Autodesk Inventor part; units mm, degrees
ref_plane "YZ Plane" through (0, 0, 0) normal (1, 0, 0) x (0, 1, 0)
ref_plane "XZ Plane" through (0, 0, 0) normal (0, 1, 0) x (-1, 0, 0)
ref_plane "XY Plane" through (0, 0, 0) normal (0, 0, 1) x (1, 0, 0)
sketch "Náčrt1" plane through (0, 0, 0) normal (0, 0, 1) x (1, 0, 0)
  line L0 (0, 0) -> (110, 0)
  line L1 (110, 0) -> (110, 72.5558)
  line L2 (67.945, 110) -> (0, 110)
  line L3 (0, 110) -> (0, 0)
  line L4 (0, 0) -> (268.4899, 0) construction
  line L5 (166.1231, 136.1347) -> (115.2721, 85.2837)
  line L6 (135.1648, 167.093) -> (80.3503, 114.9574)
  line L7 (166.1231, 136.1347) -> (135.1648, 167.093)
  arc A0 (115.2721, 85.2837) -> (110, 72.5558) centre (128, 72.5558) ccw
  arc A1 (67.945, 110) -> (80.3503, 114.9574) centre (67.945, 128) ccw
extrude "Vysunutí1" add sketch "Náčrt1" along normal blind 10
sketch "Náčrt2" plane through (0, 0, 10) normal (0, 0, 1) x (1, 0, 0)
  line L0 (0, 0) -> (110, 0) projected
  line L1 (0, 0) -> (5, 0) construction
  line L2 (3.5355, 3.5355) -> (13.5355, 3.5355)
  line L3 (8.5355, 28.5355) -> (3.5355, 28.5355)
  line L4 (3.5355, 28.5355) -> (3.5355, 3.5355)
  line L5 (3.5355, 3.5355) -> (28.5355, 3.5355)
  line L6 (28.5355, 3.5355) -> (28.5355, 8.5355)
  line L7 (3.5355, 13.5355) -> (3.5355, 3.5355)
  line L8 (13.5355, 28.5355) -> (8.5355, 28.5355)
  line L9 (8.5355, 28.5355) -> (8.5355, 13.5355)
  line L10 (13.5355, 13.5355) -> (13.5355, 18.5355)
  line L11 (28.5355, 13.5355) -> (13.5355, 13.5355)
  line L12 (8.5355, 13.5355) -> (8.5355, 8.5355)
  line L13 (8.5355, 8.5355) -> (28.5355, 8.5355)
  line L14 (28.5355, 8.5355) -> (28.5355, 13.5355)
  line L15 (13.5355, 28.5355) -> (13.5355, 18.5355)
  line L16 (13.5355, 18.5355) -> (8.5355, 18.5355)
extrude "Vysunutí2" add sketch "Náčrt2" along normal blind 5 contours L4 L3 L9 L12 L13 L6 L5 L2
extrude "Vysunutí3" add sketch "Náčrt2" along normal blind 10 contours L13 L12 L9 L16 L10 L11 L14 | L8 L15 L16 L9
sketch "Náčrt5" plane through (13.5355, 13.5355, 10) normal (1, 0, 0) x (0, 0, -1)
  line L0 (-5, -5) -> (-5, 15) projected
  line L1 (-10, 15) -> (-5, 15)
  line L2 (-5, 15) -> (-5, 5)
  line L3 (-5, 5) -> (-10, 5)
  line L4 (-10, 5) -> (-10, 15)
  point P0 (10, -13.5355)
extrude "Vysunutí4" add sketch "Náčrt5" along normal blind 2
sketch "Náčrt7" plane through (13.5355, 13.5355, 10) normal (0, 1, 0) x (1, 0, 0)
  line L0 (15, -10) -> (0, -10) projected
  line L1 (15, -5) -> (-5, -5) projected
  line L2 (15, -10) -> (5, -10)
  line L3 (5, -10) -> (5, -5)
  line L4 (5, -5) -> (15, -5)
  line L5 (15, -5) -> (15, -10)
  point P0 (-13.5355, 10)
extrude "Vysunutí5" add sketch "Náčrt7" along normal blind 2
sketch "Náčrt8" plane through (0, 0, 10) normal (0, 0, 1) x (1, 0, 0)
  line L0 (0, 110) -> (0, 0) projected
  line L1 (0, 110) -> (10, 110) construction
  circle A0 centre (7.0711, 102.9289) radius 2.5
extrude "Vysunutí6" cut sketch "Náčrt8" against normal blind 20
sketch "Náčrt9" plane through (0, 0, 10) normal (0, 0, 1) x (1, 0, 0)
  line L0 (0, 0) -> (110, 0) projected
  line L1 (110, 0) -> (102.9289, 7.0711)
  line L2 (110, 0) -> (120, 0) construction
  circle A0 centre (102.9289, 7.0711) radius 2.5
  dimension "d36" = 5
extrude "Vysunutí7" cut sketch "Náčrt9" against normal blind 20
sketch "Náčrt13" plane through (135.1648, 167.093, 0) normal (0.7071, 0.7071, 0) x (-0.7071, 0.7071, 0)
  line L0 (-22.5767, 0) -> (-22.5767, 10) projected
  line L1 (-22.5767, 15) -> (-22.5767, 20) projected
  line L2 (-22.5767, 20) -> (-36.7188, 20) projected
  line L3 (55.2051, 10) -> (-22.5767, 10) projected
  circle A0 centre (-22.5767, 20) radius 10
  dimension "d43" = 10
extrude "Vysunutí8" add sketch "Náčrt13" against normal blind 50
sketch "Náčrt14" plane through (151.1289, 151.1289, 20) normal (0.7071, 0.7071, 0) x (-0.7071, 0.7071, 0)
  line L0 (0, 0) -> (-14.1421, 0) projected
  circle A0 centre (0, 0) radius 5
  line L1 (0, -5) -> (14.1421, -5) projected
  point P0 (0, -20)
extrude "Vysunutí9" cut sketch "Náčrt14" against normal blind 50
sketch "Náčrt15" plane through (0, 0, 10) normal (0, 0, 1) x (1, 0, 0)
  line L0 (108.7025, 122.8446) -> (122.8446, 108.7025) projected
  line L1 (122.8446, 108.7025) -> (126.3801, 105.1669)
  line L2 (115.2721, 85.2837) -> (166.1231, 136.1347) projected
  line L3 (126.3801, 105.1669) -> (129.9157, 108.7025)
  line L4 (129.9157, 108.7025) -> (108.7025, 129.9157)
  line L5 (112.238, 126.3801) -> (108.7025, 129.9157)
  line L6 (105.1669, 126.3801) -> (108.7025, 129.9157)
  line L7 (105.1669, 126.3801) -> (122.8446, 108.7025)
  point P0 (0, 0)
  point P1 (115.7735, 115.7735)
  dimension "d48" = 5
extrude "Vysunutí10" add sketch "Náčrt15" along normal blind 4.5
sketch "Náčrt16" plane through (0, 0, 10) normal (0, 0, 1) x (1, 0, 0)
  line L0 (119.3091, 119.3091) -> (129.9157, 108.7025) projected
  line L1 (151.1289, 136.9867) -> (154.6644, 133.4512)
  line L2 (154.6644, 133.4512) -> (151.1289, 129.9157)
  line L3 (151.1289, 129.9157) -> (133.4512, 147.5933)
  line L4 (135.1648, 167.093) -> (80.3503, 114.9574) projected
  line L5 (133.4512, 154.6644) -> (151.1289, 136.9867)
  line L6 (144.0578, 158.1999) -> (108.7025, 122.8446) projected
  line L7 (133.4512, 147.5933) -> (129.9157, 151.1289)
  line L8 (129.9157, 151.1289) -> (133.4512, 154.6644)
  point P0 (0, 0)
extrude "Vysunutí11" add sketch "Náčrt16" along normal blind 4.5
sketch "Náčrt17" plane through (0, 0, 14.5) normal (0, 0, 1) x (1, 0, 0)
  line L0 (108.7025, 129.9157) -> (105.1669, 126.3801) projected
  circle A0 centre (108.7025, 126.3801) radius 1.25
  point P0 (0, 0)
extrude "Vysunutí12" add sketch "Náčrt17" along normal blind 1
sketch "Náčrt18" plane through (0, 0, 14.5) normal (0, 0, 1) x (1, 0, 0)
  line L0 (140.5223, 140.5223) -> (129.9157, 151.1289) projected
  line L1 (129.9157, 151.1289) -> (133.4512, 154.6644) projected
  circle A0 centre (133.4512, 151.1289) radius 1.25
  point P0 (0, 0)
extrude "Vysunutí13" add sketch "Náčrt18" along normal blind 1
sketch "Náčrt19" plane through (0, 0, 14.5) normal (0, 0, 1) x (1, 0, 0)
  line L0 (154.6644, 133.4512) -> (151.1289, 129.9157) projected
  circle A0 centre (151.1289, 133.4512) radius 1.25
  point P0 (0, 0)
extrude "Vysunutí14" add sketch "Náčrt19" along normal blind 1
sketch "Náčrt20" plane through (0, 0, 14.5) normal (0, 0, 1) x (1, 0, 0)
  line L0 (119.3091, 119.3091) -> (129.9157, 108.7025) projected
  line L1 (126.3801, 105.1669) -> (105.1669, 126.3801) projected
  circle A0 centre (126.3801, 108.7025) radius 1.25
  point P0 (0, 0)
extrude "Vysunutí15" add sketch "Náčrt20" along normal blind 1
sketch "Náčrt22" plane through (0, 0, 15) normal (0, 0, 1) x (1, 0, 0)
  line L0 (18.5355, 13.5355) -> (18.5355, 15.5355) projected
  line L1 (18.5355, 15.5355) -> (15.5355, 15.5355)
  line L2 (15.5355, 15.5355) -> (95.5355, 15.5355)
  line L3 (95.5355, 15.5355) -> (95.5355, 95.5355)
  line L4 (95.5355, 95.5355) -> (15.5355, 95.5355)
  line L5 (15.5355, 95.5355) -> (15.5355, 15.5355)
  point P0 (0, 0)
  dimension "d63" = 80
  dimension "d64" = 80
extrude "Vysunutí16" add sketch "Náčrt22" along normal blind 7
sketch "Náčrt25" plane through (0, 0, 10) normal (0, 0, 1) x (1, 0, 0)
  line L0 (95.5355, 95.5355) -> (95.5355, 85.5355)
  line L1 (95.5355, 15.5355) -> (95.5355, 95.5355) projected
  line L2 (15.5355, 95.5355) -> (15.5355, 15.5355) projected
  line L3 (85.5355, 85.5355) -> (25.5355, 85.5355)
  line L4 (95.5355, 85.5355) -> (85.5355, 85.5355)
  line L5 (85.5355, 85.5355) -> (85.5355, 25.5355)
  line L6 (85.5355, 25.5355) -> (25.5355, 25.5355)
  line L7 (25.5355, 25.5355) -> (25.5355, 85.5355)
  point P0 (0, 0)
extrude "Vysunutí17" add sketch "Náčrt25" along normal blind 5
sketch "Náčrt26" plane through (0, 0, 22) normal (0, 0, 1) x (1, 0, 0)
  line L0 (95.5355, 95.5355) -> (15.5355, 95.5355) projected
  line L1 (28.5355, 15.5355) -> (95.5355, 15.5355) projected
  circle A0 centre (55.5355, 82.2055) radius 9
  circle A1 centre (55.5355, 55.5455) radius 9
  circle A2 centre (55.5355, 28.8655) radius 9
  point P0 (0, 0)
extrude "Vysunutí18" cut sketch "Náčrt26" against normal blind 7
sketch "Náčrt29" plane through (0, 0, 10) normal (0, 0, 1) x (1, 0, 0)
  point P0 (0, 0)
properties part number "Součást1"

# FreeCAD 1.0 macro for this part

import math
import FreeCAD as App
import Part
import Sketcher
Q = App.Units.Quantity


def add_polygon(sketch, points):
    """Adds a closed chain of lines whose ends are joined by coincident constraints."""
    first, n = sketch.GeometryCount, len(points)
    for a, b in zip(points, points[1:] + points[:1]):
        sketch.addGeometry(Part.LineSegment(App.Vector(*a, 0), App.Vector(*b, 0)), False)
    for i in range(n):
        sketch.addConstraint(Sketcher.Constraint("Coincident", first + i, 2, first + (i + 1) % n, 1))

doc = App.newDocument("Part")
body = doc.addObject("PartDesign::Body", "Body")
body.AllowCompound = True

# Sketch on XY plane
sketch1 = body.newObject("Sketcher::SketchObject", "Sketch")
sketch1.AttachmentSupport = (doc.getObject("XY_Plane"), [""])
sketch1.MapMode = "FlatFace"
sketch1.addGeometry([
    Part.LineSegment(App.Vector(0, 110, 0), App.Vector(0, 0, 0)),  # 0
    Part.LineSegment(App.Vector(0, 0, 0), App.Vector(110, 0, 0)),  # 1
    Part.LineSegment(App.Vector(110, 0, 0), App.Vector(110, 72.5558, 0)),  # 2
    Part.ArcOfCircle(Part.Circle(App.Vector(128, 72.5558, 0), App.Vector(0, 0, 1), 17.999969), math.radians(135), math.radians(180)),  # 3
    Part.LineSegment(App.Vector(115.2721, 85.2837, 0), App.Vector(166.1231, 136.1347, 0)),  # 4
    Part.LineSegment(App.Vector(166.1231, 136.1347, 0), App.Vector(135.1648, 167.093, 0)),  # 5
    Part.LineSegment(App.Vector(135.1648, 167.093, 0), App.Vector(80.3503, 114.9574, 0)),  # 6
    Part.ArcOfCircle(Part.Circle(App.Vector(67.945, 128, 0), App.Vector(0, 0, 1), 18), math.radians(-90), math.radians(-46.434577)),  # 7
    Part.LineSegment(App.Vector(67.945, 110, 0), App.Vector(0, 110, 0)),  # 8
], False)
sketch1.addConstraint([
    Sketcher.Constraint("Coincident", 0, 2, 1, 1),
    Sketcher.Constraint("Coincident", 1, 2, 2, 1),
    Sketcher.Constraint("Tangent", 2, 2, 3, 2),
    Sketcher.Constraint("Tangent", 3, 1, 4, 1),
    Sketcher.Constraint("Coincident", 4, 2, 5, 1),
    Sketcher.Constraint("Coincident", 5, 2, 6, 1),
    Sketcher.Constraint("Tangent", 6, 2, 7, 2),
    Sketcher.Constraint("Tangent", 7, 1, 8, 1),
    Sketcher.Constraint("Coincident", 8, 2, 0, 1),
    Sketcher.Constraint("Vertical", 0),
    Sketcher.Constraint("Horizontal", 1),
    Sketcher.Constraint("Vertical", 2),
    Sketcher.Constraint("Horizontal", 8),
    Sketcher.Constraint("Coincident", 0, 2, -1, 1),
    Sketcher.Constraint("Equal", 3, 7),
    Sketcher.Constraint("Perpendicular", 4, 5),
    Sketcher.Constraint("Equal", 1, 0),
    Sketcher.Constraint("Radius", 3, 18.0),
    Sketcher.Constraint("DistanceX", 1, 1, 1, 2, 110.0),
    Sketcher.Constraint("Angle", 4, Q("45 deg")),
    Sketcher.Constraint("DistanceX", 8, 2, 8, 1, 67.945),
    Sketcher.Constraint("DistanceY", 2, 1, 2, 2, 72.5558),
    Sketcher.Constraint("DistanceX", -1, 1, 4, 2, 166.123),
    Sketcher.Constraint("DistanceY", -1, 1, 5, 2, 167.093),
])
pad1 = body.newObject("PartDesign::Pad", "Pad")
pad1.Profile = sketch1
pad1.Length = 10

# Sketch on XY plane
sketch2 = body.newObject("Sketcher::SketchObject", "Sketch001")
sketch2.AttachmentSupport = (doc.getObject("XY_Plane"), [""])
sketch2.MapMode = "FlatFace"
sketch2.AttachmentOffset = App.Placement(App.Vector(0, 0, 10), App.Rotation())
add_polygon(sketch2, [(3.5355, 28.5355), (3.5355, 3.5355), (28.5355, 3.5355), (28.5355, 8.5355), (8.5355, 8.5355), (8.5355, 28.5355)])  # lines 0-5
sketch2.addConstraint([
    Sketcher.Constraint("Vertical", 0),
    Sketcher.Constraint("Horizontal", 1),
    Sketcher.Constraint("Vertical", 2),
    Sketcher.Constraint("Horizontal", 3),
    Sketcher.Constraint("Vertical", 4),
    Sketcher.Constraint("Horizontal", 5),
    Sketcher.Constraint("Equal", 1, 0),
    Sketcher.Constraint("Equal", 5, 2),
    Sketcher.Constraint("DistanceX", 1, 1, 1, 2, 25.0),
    Sketcher.Constraint("DistanceX", 3, 2, 3, 1, 20.0),
    Sketcher.Constraint("DistanceX", -1, 1, 0, 2, 3.5355),
    Sketcher.Constraint("DistanceY", -1, 1, 0, 2, 3.5355),
])
pad2 = body.newObject("PartDesign::Pad", "Pad001")
pad2.Profile = sketch2
pad2.Length = 5

# Sketch on XY plane
sketch3 = body.newObject("Sketcher::SketchObject", "Sketch002")
sketch3.AttachmentSupport = (doc.getObject("XY_Plane"), [""])
sketch3.MapMode = "FlatFace"
sketch3.AttachmentOffset = App.Placement(App.Vector(0, 0, 10), App.Rotation())
add_polygon(sketch3, [(8.5355, 8.5355), (28.5355, 8.5355), (28.5355, 13.5355), (13.5355, 13.5355), (13.5355, 28.5355), (8.5355, 28.5355)])  # lines 0-5
sketch3.addConstraint([
    Sketcher.Constraint("Horizontal", 0),
    Sketcher.Constraint("Vertical", 1),
    Sketcher.Constraint("Horizontal", 2),
    Sketcher.Constraint("Vertical", 3),
    Sketcher.Constraint("Horizontal", 4),
    Sketcher.Constraint("Vertical", 5),
    Sketcher.Constraint("Equal", 4, 1),
    Sketcher.Constraint("Equal", 2, 3),
    Sketcher.Constraint("DistanceX", 0, 1, 0, 2, 20.0),
    Sketcher.Constraint("DistanceX", 2, 2, 2, 1, 15.0),
    Sketcher.Constraint("DistanceX", -1, 1, 0, 2, 28.5355),
    Sketcher.Constraint("DistanceY", -1, 1, 0, 2, 8.5355),
])
pad3 = body.newObject("PartDesign::Pad", "Pad002")
pad3.Profile = sketch3
pad3.Length = 10

# Sketch on YZ plane
sketch4 = body.newObject("Sketcher::SketchObject", "Sketch003")
sketch4.AttachmentSupport = (doc.getObject("YZ_Plane"), [""])
sketch4.MapMode = "FlatFace"
sketch4.AttachmentOffset = App.Placement(App.Vector(0, 0, 13.5355), App.Rotation())
add_polygon(sketch4, [(18.5355, 20), (18.5355, 15), (28.5355, 15), (28.5355, 20)])  # lines 0-3
sketch4.addConstraint([
    Sketcher.Constraint("Vertical", 0),
    Sketcher.Constraint("Horizontal", 1),
    Sketcher.Constraint("Vertical", 2),
    Sketcher.Constraint("Horizontal", 3),
    Sketcher.Constraint("DistanceX", 1, 1, 1, 2, 10.0),
    Sketcher.Constraint("DistanceY", 0, 2, 0, 1, 5.0),
    Sketcher.Constraint("DistanceY", -1, 1, 0, 2, 15.0),
    Sketcher.Constraint("DistanceX", -1, 1, 0, 2, 18.5355),
])
pad4 = body.newObject("PartDesign::Pad", "Pad003")
pad4.Profile = sketch4
pad4.Length = 2

# Sketch on XZ plane
sketch5 = body.newObject("Sketcher::SketchObject", "Sketch004")
sketch5.AttachmentSupport = (doc.getObject("XZ_Plane"), [""])
sketch5.MapMode = "FlatFace"
sketch5.AttachmentOffset = App.Placement(App.Vector(0, 0, -13.5355), App.Rotation())
add_polygon(sketch5, [(18.5355, 20), (28.5355, 20), (28.5355, 15), (18.5355, 15)])  # lines 0-3
sketch5.addConstraint([
    Sketcher.Constraint("Horizontal", 0),
    Sketcher.Constraint("Vertical", 1),
    Sketcher.Constraint("Horizontal", 2),
    Sketcher.Constraint("Vertical", 3),
    Sketcher.Constraint("DistanceX", 0, 1, 0, 2, 10.0),
    Sketcher.Constraint("DistanceY", 1, 2, 1, 1, 5.0),
    Sketcher.Constraint("DistanceY", -1, 1, 0, 2, 20.0),
    Sketcher.Constraint("DistanceX", -1, 1, 0, 2, 28.5355),
])
pad5 = body.newObject("PartDesign::Pad", "Pad004")
pad5.Profile = sketch5
pad5.Length = 2
pad5.Reversed = True

# Sketch on XY plane
sketch6 = body.newObject("Sketcher::SketchObject", "Sketch005")
sketch6.AttachmentSupport = (doc.getObject("XY_Plane"), [""])
sketch6.MapMode = "FlatFace"
sketch6.AttachmentOffset = App.Placement(App.Vector(0, 0, 10), App.Rotation())
sketch6.addGeometry(Part.Circle(App.Vector(7.0711, 102.9289, 0), App.Vector(0, 0, 1), 2.5), False)
sketch6.addConstraint([
    Sketcher.Constraint("Diameter", 0, 5.0),
    Sketcher.Constraint("DistanceX", -1, 1, 0, 3, 7.071),
    Sketcher.Constraint("DistanceY", -1, 1, 0, 3, 102.929),
])
pocket1 = body.newObject("PartDesign::Pocket", "Pocket")
pocket1.Profile = sketch6
pocket1.Length = 20

# Sketch on XY plane
sketch7 = body.newObject("Sketcher::SketchObject", "Sketch006")
sketch7.AttachmentSupport = (doc.getObject("XY_Plane"), [""])
sketch7.MapMode = "FlatFace"
sketch7.AttachmentOffset = App.Placement(App.Vector(0, 0, 10), App.Rotation())
sketch7.addGeometry(Part.Circle(App.Vector(102.9289, 7.0711, 0), App.Vector(0, 0, 1), 2.5), False)
sketch7.addConstraint([
    Sketcher.Constraint("Diameter", 0, 5.0),
    Sketcher.Constraint("DistanceX", -1, 1, 0, 3, 102.929),
    Sketcher.Constraint("DistanceY", -1, 1, 0, 3, 7.071),
])
pocket2 = body.newObject("PartDesign::Pocket", "Pocket001")
pocket2.Profile = sketch7
pocket2.Length = 20

# Sketch on an angled plane
sketch8 = body.newObject("Sketcher::SketchObject", "Sketch007")
sketch8.Placement = App.Placement(App.Vector(135.1648, 167.093, 0), App.Rotation(App.Vector(-0.707106781, 0.707106781, 0), App.Vector(0, 0, 0.999999999), App.Vector(0.707106781, 0.707106781, 0), "ZXY"))
sketch8.addGeometry(Part.Circle(App.Vector(-22.5767, 20, 0), App.Vector(0, 0, 1), 10), False)
sketch8.addConstraint([
    Sketcher.Constraint("Diameter", 0, 20.0),
    Sketcher.Constraint("DistanceY", -1, 1, 0, 3, 20.0),
    Sketcher.Constraint("DistanceX", 0, 3, -1, 1, 22.5767),
])
pad6 = body.newObject("PartDesign::Pad", "Pad005")
pad6.Profile = sketch8
pad6.Length = 50
pad6.Reversed = True

# Sketch on an angled plane
sketch9 = body.newObject("Sketcher::SketchObject", "Sketch008")
sketch9.Placement = App.Placement(App.Vector(151.1289, 151.1289, 20), App.Rotation(App.Vector(-0.707106781, 0.707106781, 0), App.Vector(0, 0, 0.999999999), App.Vector(0.707106781, 0.707106781, 0), "ZXY"))
sketch9.addGeometry(Part.Circle(App.Vector(0, 0, 0), App.Vector(0, 0, 1), 5), False)
sketch9.addConstraint([
    Sketcher.Constraint("Coincident", 0, 3, -1, 1),
    Sketcher.Constraint("Diameter", 0, 10.0),
])
pocket3 = body.newObject("PartDesign::Pocket", "Pocket002")
pocket3.Profile = sketch9
pocket3.Length = 50

# Sketch on XY plane
sketch10 = body.newObject("Sketcher::SketchObject", "Sketch009")
sketch10.AttachmentSupport = (doc.getObject("XY_Plane"), [""])
sketch10.MapMode = "FlatFace"
sketch10.AttachmentOffset = App.Placement(App.Vector(0, 0, 10), App.Rotation())
add_polygon(sketch10, [(105.1669, 126.3801), (108.7025, 122.8446), (122.8446, 108.7025), (126.3801, 105.1669), (129.9157, 108.7025), (108.7025, 129.9157)])  # lines 0-5
sketch10.addConstraint([
    Sketcher.Constraint("Parallel", 0, 1),
    Sketcher.Constraint("Parallel", 1, 2),
    Sketcher.Constraint("Perpendicular", 2, 3),
    Sketcher.Constraint("Perpendicular", 3, 4),
    Sketcher.Constraint("Perpendicular", 4, 5),
    Sketcher.Constraint("Horizontal", 1, 2, 3, 2),
    Sketcher.Constraint("Vertical", 0, 2, 4, 2),
    Sketcher.Constraint("Equal", 0, 2),
    Sketcher.Constraint("Distance", 0, 5.0),
    Sketcher.Constraint("Distance", 1, 20.0),
    Sketcher.Constraint("DistanceX", -1, 1, 2, 2, 126.38),
    Sketcher.Constraint("DistanceY", -1, 1, 5, 2, 126.38),
])
pad7 = body.newObject("PartDesign::Pad", "Pad006")
pad7.Profile = sketch10
pad7.Length = 4.5

# Sketch on XY plane
sketch11 = body.newObject("Sketcher::SketchObject", "Sketch010")
sketch11.AttachmentSupport = (doc.getObject("XY_Plane"), [""])
sketch11.MapMode = "FlatFace"
sketch11.AttachmentOffset = App.Placement(App.Vector(0, 0, 10), App.Rotation())
add_polygon(sketch11, [(154.6644, 133.4512), (133.4512, 154.6644), (129.9157, 151.1289), (133.4512, 147.5933), (151.1289, 129.9157)])  # lines 0-4
sketch11.addConstraint([
    Sketcher.Constraint("Perpendicular", 0, 1),
    Sketcher.Constraint("Perpendicular", 1, 2),
    Sketcher.Constraint("Parallel", 2, 3),
    Sketcher.Constraint("Perpendicular", 3, 4),
    Sketcher.Constraint("Vertical", 0, 2, 2, 2),
    Sketcher.Constraint("Equal", 1, 2),
    Sketcher.Constraint("Distance", 0, 30.0),
    Sketcher.Constraint("Distance", 1, 5.0),
    Sketcher.Constraint("DistanceY", -1, 1, 1, 2, 151.129),
    Sketcher.Constraint("DistanceX", -1, 1, 3, 2, 151.129),
])
pad8 = body.newObject("PartDesign::Pad", "Pad007")
pad8.Profile = sketch11
pad8.Length = 4.5

# Sketch on XY plane
sketch12 = body.newObject("Sketcher::SketchObject", "Sketch011")
sketch12.AttachmentSupport = (doc.getObject("XY_Plane"), [""])
sketch12.MapMode = "FlatFace"
sketch12.AttachmentOffset = App.Placement(App.Vector(0, 0, 14.5), App.Rotation())
sketch12.addGeometry(Part.Circle(App.Vector(108.7025, 126.3801, 0), App.Vector(0, 0, 1), 1.25), False)
sketch12.addConstraint([
    Sketcher.Constraint("Diameter", 0, 2.5),
    Sketcher.Constraint("DistanceY", -1, 1, 0, 3, 126.38),
    Sketcher.Constraint("DistanceX", -1, 1, 0, 3, 108.7025),
])
pad9 = body.newObject("PartDesign::Pad", "Pad008")
pad9.Profile = sketch12
pad9.Length = 1

# Sketch on XY plane
sketch13 = body.newObject("Sketcher::SketchObject", "Sketch012")
sketch13.AttachmentSupport = (doc.getObject("XY_Plane"), [""])
sketch13.MapMode = "FlatFace"
sketch13.AttachmentOffset = App.Placement(App.Vector(0, 0, 14.5), App.Rotation())
sketch13.addGeometry(Part.Circle(App.Vector(133.4512, 151.1289, 0), App.Vector(0, 0, 1), 1.25), False)
sketch13.addConstraint([
    Sketcher.Constraint("Diameter", 0, 2.5),
    Sketcher.Constraint("DistanceY", -1, 1, 0, 3, 151.129),
    Sketcher.Constraint("DistanceX", -1, 1, 0, 3, 133.4512),
])
pad10 = body.newObject("PartDesign::Pad", "Pad009")
pad10.Profile = sketch13
pad10.Length = 1

# Sketch on XY plane
sketch14 = body.newObject("Sketcher::SketchObject", "Sketch013")
sketch14.AttachmentSupport = (doc.getObject("XY_Plane"), [""])
sketch14.MapMode = "FlatFace"
sketch14.AttachmentOffset = App.Placement(App.Vector(0, 0, 14.5), App.Rotation())
sketch14.addGeometry(Part.Circle(App.Vector(151.1289, 133.4512, 0), App.Vector(0, 0, 1), 1.25), False)
sketch14.addConstraint([
    Sketcher.Constraint("Diameter", 0, 2.5),
    Sketcher.Constraint("DistanceX", -1, 1, 0, 3, 151.129),
    Sketcher.Constraint("DistanceY", -1, 1, 0, 3, 133.4512),
])
pad11 = body.newObject("PartDesign::Pad", "Pad010")
pad11.Profile = sketch14
pad11.Length = 1

# Sketch on XY plane
sketch15 = body.newObject("Sketcher::SketchObject", "Sketch014")
sketch15.AttachmentSupport = (doc.getObject("XY_Plane"), [""])
sketch15.MapMode = "FlatFace"
sketch15.AttachmentOffset = App.Placement(App.Vector(0, 0, 14.5), App.Rotation())
sketch15.addGeometry(Part.Circle(App.Vector(126.3801, 108.7025, 0), App.Vector(0, 0, 1), 1.25), False)
sketch15.addConstraint([
    Sketcher.Constraint("Diameter", 0, 2.5),
    Sketcher.Constraint("DistanceX", -1, 1, 0, 3, 126.38),
    Sketcher.Constraint("DistanceY", -1, 1, 0, 3, 108.7025),
])
pad12 = body.newObject("PartDesign::Pad", "Pad011")
pad12.Profile = sketch15
pad12.Length = 1

# Sketch on XY plane
sketch16 = body.newObject("Sketcher::SketchObject", "Sketch015")
sketch16.AttachmentSupport = (doc.getObject("XY_Plane"), [""])
sketch16.MapMode = "FlatFace"
sketch16.AttachmentOffset = App.Placement(App.Vector(0, 0, 15), App.Rotation())
add_polygon(sketch16, [(15.5355, 15.5355), (95.5355, 15.5355), (95.5355, 95.5355), (15.5355, 95.5355)])  # lines 0-3
sketch16.addConstraint([
    Sketcher.Constraint("Horizontal", 0),
    Sketcher.Constraint("Vertical", 1),
    Sketcher.Constraint("Horizontal", 2),
    Sketcher.Constraint("Vertical", 3),
    Sketcher.Constraint("Equal", 2, 1),
    Sketcher.Constraint("DistanceX", 0, 1, 0, 2, 80.0),
    Sketcher.Constraint("DistanceX", -1, 1, 0, 2, 95.5355),
    Sketcher.Constraint("DistanceY", -1, 1, 0, 2, 15.5355),
])
pad13 = body.newObject("PartDesign::Pad", "Pad012")
pad13.Profile = sketch16
pad13.Length = 7

# Sketch on XY plane
sketch17 = body.newObject("Sketcher::SketchObject", "Sketch016")
sketch17.AttachmentSupport = (doc.getObject("XY_Plane"), [""])
sketch17.MapMode = "FlatFace"
sketch17.AttachmentOffset = App.Placement(App.Vector(0, 0, 10), App.Rotation())
add_polygon(sketch17, [(85.5355, 25.5355), (85.5355, 85.5355), (25.5355, 85.5355), (25.5355, 25.5355)])  # lines 0-3
sketch17.addConstraint([
    Sketcher.Constraint("Vertical", 0),
    Sketcher.Constraint("Horizontal", 1),
    Sketcher.Constraint("Vertical", 2),
    Sketcher.Constraint("Horizontal", 3),
    Sketcher.Constraint("Equal", 3, 0),
    Sketcher.Constraint("DistanceX", 1, 2, 1, 1, 60.0),
    Sketcher.Constraint("DistanceX", -1, 1, 0, 2, 85.5355),
    Sketcher.Constraint("DistanceY", -1, 1, 0, 2, 85.5355),
])
pad14 = body.newObject("PartDesign::Pad", "Pad013")
pad14.Profile = sketch17
pad14.Length = 5

# Sketch on XY plane
sketch18 = body.newObject("Sketcher::SketchObject", "Sketch017")
sketch18.AttachmentSupport = (doc.getObject("XY_Plane"), [""])
sketch18.MapMode = "FlatFace"
sketch18.AttachmentOffset = App.Placement(App.Vector(0, 0, 22), App.Rotation())
sketch18.addGeometry([
    Part.Circle(App.Vector(55.5355, 82.2055, 0), App.Vector(0, 0, 1), 9),
    Part.Circle(App.Vector(55.5355, 55.5455, 0), App.Vector(0, 0, 1), 9),
    Part.Circle(App.Vector(55.5355, 28.8655, 0), App.Vector(0, 0, 1), 9),
], False)
sketch18.addConstraint([
    Sketcher.Constraint("Equal", 0, 1),
    Sketcher.Constraint("Equal", 1, 2),
    Sketcher.Constraint("Vertical", 0, 3, 1, 3),
    Sketcher.Constraint("Vertical", 1, 3, 2, 3),
    Sketcher.Constraint("Diameter", 0, 18.0),
    Sketcher.Constraint("DistanceY", 1, 3, 0, 3, 26.66),
    Sketcher.Constraint("DistanceY", 2, 3, 1, 3, 26.68),
    Sketcher.Constraint("DistanceX", -1, 1, 0, 3, 55.5355),
    Sketcher.Constraint("DistanceY", -1, 1, 0, 3, 82.2055),
])
pocket4 = body.newObject("PartDesign::Pocket", "Pocket003")
pocket4.Profile = sketch18
pocket4.Length = 7

doc.recompute()
